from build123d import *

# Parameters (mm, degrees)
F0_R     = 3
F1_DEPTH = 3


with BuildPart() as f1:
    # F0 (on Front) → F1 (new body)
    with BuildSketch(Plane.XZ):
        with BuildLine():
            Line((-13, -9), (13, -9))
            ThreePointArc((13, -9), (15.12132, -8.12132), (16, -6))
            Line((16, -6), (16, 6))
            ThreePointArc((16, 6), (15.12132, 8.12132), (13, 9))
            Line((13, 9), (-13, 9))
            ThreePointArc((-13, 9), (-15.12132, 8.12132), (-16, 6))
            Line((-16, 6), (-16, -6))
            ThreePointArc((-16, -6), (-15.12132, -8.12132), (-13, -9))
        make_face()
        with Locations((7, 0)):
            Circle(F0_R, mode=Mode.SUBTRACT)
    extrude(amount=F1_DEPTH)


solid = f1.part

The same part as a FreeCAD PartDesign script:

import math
import FreeCAD as App
import Part
import Sketcher
from FreeCAD import Vector
Q = App.Units.Quantity

doc = App.newDocument("Part")
body = doc.addObject("PartDesign::Body", "Body")

# Sketch on XZ plane
sketch1 = body.newObject("Sketcher::SketchObject", "Sketch")
sketch1.AttachmentSupport = (doc.getObject("XZ_Plane"), [""])
sketch1.MapMode = "FlatFace"
sketch1.addGeometry(Part.LineSegment(Vector(-13, -9, 0), Vector(13, -9, 0)), False)
sketch1.addGeometry(Part.ArcOfCircle(Part.Circle(Vector(12.999999, -5.999999, 0), Vector(0, 0, 1), 3.000001), math.radians(-89.999978), math.radians(-0.000022)), False)
sketch1.addGeometry(Part.LineSegment(Vector(16, -6, 0), Vector(16, 6, 0)), False)
sketch1.addGeometry(Part.ArcOfCircle(Part.Circle(Vector(12.999999, 5.999999, 0), Vector(0, 0, 1), 3.000001), math.radians(0.000022), math.radians(89.999978)), False)
sketch1.addGeometry(Part.LineSegment(Vector(13, 9, 0), Vector(-13, 9, 0)), False)
sketch1.addGeometry(Part.ArcOfCircle(Part.Circle(Vector(-12.999999, 5.999999, 0), Vector(0, 0, 1), 3.000001), math.radians(90.000022), math.radians(179.999978)), False)
sketch1.addGeometry(Part.LineSegment(Vector(-16, 6, 0), Vector(-16, -6, 0)), False)
sketch1.addGeometry(Part.ArcOfCircle(Part.Circle(Vector(-12.999999, -5.999999, 0), Vector(0, 0, 1), 3.000001), math.radians(-179.999978), math.radians(-90.000022)), False)
sketch1.addGeometry(Part.Circle(Vector(7, 0, 0), Vector(0, 0, 1), 3), False)
sketch1.addConstraint(Sketcher.Constraint("Tangent", 0, 2, 1, 1))
sketch1.addConstraint(Sketcher.Constraint("Tangent", 1, 2, 2, 1))
sketch1.addConstraint(Sketcher.Constraint("Tangent", 2, 2, 3, 1))
sketch1.addConstraint(Sketcher.Constraint("Tangent", 3, 2, 4, 1))
sketch1.addConstraint(Sketcher.Constraint("Tangent", 4, 2, 5, 1))
sketch1.addConstraint(Sketcher.Constraint("Tangent", 5, 2, 6, 1))
sketch1.addConstraint(Sketcher.Constraint("Tangent", 6, 2, 7, 1))
sketch1.addConstraint(Sketcher.Constraint("Tangent", 7, 2, 0, 1))
sketch1.addConstraint(Sketcher.Constraint("Horizontal", 0))
sketch1.addConstraint(Sketcher.Constraint("Vertical", 2))
sketch1.addConstraint(Sketcher.Constraint("Horizontal", 4))
sketch1.addConstraint(Sketcher.Constraint("Vertical", 6))
sketch1.addConstraint(Sketcher.Constraint("Equal", 1, 3))
sketch1.addConstraint(Sketcher.Constraint("Equal", 3, 5))
sketch1.addConstraint(Sketcher.Constraint("Equal", 5, 7))
sketch1.addConstraint(Sketcher.Constraint("Equal", 7, 8))
sketch1.addConstraint(Sketcher.Constraint("Symmetric", 1, 3, 5, 3, -1, 1))
sketch1.addConstraint(Sketcher.Constraint("PointOnObject", 8, 3, -1))
sketch1.addConstraint(Sketcher.Constraint("Diameter", 8, Q("6 mm")))
sketch1.addConstraint(Sketcher.Constraint("DistanceX", 0, 1, 0, 2, Q("26 mm")))
sketch1.addConstraint(Sketcher.Constraint("DistanceY", 2, 1, 2, 2, Q("12 mm")))
sketch1.addConstraint(Sketcher.Constraint("DistanceX", -1, 1, 8, 3, Q("7 mm")))
pad1 = body.newObject("PartDesign::Pad", "Pad")
pad1.Profile = sketch1
pad1.Length = 3

doc.recompute()
